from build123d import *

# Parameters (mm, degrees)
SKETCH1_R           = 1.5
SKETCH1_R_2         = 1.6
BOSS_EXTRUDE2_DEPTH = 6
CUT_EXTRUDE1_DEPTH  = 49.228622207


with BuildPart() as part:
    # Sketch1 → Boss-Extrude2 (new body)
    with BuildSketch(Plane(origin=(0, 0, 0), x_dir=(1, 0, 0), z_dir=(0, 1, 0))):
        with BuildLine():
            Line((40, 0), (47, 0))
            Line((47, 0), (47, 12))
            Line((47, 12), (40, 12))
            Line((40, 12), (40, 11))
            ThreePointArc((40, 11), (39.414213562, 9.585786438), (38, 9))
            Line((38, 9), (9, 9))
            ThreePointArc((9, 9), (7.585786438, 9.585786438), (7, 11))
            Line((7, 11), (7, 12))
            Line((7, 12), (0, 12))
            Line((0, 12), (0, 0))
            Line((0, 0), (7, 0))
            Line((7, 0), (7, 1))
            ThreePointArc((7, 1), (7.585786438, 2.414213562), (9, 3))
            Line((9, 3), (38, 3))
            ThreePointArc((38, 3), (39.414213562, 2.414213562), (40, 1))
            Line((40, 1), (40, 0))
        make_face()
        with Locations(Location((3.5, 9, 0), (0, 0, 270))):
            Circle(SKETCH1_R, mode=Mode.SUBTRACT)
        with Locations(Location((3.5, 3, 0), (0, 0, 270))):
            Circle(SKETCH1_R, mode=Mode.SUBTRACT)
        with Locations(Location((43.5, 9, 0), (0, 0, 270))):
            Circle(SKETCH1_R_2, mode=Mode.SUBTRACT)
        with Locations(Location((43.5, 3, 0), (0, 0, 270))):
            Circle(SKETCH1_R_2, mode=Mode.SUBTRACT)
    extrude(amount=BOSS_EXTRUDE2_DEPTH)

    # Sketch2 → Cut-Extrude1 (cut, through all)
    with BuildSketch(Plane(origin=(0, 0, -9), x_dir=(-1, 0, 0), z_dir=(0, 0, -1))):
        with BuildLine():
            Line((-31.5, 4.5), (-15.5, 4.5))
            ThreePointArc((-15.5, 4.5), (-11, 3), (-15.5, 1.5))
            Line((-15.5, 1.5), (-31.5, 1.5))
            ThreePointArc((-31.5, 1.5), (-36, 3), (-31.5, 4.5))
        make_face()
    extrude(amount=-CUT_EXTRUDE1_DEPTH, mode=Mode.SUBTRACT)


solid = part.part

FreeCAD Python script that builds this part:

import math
import FreeCAD as App
import Part
import Sketcher

V = App.Vector
Q = App.Units.Quantity

doc = App.newDocument("Part")
body = doc.addObject("PartDesign::Body", "Body")

sketch1 = body.newObject("Sketcher::SketchObject", "Sketch")
sketch1.AttachmentSupport = (doc.getObject("XZ_Plane"), [""])
sketch1.MapMode = "FlatFace"
sketch1.addGeometry([
    Part.LineSegment(V(40, 0, 0), V(47, 0, 0)),
    Part.LineSegment(V(47, 0, 0), V(47, -12, 0)),
    Part.LineSegment(V(47, -12, 0), V(40, -12, 0)),
    Part.LineSegment(V(40, -12, 0), V(40, -11, 0)),
    Part.ArcOfCircle(Part.Circle(V(38, -11, 0), V(0, 0, 1), 2), math.radians(0), math.radians(90)),
    Part.LineSegment(V(38, -9, 0), V(9, -9, 0)),
    Part.ArcOfCircle(Part.Circle(V(9, -11, 0), V(0, 0, 1), 2), math.radians(90), math.radians(180)),
    Part.LineSegment(V(7, -11, 0), V(7, -12, 0)),
    Part.LineSegment(V(7, -12, 0), V(0, -12, 0)),
    Part.LineSegment(V(0, -12, 0), V(0, 0, 0)),
    Part.LineSegment(V(0, 0, 0), V(7, 0, 0)),
    Part.LineSegment(V(7, 0, 0), V(7, -1, 0)),
    Part.ArcOfCircle(Part.Circle(V(9, -1, 0), V(0, 0, 1), 2), math.radians(-180), math.radians(-90)),
    Part.LineSegment(V(9, -3, 0), V(38, -3, 0)),
    Part.ArcOfCircle(Part.Circle(V(38, -1, 0), V(0, 0, 1), 2), math.radians(-90), math.radians(0)),
    Part.LineSegment(V(40, -1, 0), V(40, 0, 0)),
    Part.Circle(V(3.5, -3, 0), V(0, 0, 1), 1.5),
    Part.Circle(V(43.5, -3, 0), V(0, 0, 1), 1.6),
    Part.Circle(V(3.5, -9, 0), V(0, 0, 1), 1.5),
    Part.Circle(V(43.5, -9, 0), V(0, 0, 1), 1.6),
], False)
sketch1.addConstraint([
    Sketcher.Constraint("Coincident", 0, 2, 1, 1),
    Sketcher.Constraint("Coincident", 1, 2, 2, 1),
    Sketcher.Constraint("Coincident", 2, 2, 3, 1),
    Sketcher.Constraint("Tangent", 3, 2, 4, 1),
    Sketcher.Constraint("Tangent", 4, 2, 5, 1),
    Sketcher.Constraint("Tangent", 5, 2, 6, 1),
    Sketcher.Constraint("Tangent", 6, 2, 7, 1),
    Sketcher.Constraint("Coincident", 7, 2, 8, 1),
    Sketcher.Constraint("Coincident", 8, 2, 9, 1),
    Sketcher.Constraint("Coincident", 9, 2, 10, 1),
    Sketcher.Constraint("Coincident", 10, 2, 11, 1),
    Sketcher.Constraint("Tangent", 11, 2, 12, 1),
    Sketcher.Constraint("Tangent", 12, 2, 13, 1),
    Sketcher.Constraint("Tangent", 13, 2, 14, 1),
    Sketcher.Constraint("Tangent", 14, 2, 15, 1),
    Sketcher.Constraint("Coincident", 15, 2, 0, 1),
    Sketcher.Constraint("Horizontal", 0),
    Sketcher.Constraint("Vertical", 1),
    Sketcher.Constraint("Horizontal", 2),
    Sketcher.Constraint("Vertical", 3),
    Sketcher.Constraint("Horizontal", 5),
    Sketcher.Constraint("Vertical", 7),
    Sketcher.Constraint("Horizontal", 8),
    Sketcher.Constraint("Vertical", 9),
    Sketcher.Constraint("Horizontal", 10),
    Sketcher.Constraint("Vertical", 11),
    Sketcher.Constraint("Horizontal", 13),
    Sketcher.Constraint("Vertical", 15),
    Sketcher.Constraint("Coincident", 9, 2, -1, 1),
    Sketcher.Constraint("Equal", 4, 6),
    Sketcher.Constraint("Equal", 6, 12),
    Sketcher.Constraint("Equal", 12, 14),
    Sketcher.Constraint("Equal", 16, 18),
    Sketcher.Constraint("Equal", 17, 19),
    Sketcher.Constraint("PointOnObject", 0, 2, -1),
    Sketcher.Constraint("Horizontal", 16, 3, 17, 3),
    Sketcher.Constraint("Horizontal", 18, 3, 19, 3),
    Sketcher.Constraint("Horizontal", 19, 3, 4, 2),
    Sketcher.Constraint("Horizontal", 2, 2, 7, 2),
    Sketcher.Constraint("Horizontal", 17, 3, 12, 2),
    Sketcher.Constraint("Vertical", 6, 3, 12, 3),
    Sketcher.Constraint("Vertical", 4, 3, 14, 3),
    Sketcher.Constraint("Vertical", 16, 3, 18, 3),
    Sketcher.Constraint("Vertical", 17, 3, 19, 3),
    Sketcher.Constraint("Equal", 2, 8),
    Sketcher.Constraint("Equal", 7, 11),
    Sketcher.Constraint("Diameter", 16, Q("3 mm")),
    Sketcher.Constraint("Radius", 4, Q("2 mm")),
    Sketcher.Constraint("Diameter", 17, Q("3.2 mm")),
    Sketcher.Constraint("DistanceX", 0, 1, 0, 2, Q("7 mm")),
    Sketcher.Constraint("DistanceX", 5, 2, 5, 1, Q("29 mm")),
    Sketcher.Constraint("DistanceY", 1, 2, 1, 1, Q("12 mm")),
    Sketcher.Constraint("DistanceY", 3, 1, 3, 2, Q("1 mm")),
    Sketcher.Constraint("DistanceX", 16, 3, 17, 3, Q("40 mm")),
    Sketcher.Constraint("DistanceX", -1, 1, 16, 3, Q("3.5 mm")),
])
pad1 = body.newObject("PartDesign::Pad", "Pad")
pad1.Profile = sketch1
pad1.Length = 6
pad1.Reversed = True

sketch2 = body.newObject("Sketcher::SketchObject", "Sketch001")
sketch2.AttachmentSupport = (doc.getObject("XY_Plane"), [""])
sketch2.MapMode = "FlatFace"
sketch2.AttachmentOffset = App.Placement(V(0, 0, -9), App.Rotation())
sketch2.addGeometry([
    Part.LineSegment(V(15.5, 4.5, 0), V(31.5, 4.5, 0)),
    Part.ArcOfCircle(Part.Circle(V(33.5, 3, 0), V(0, 0, 1), 2.5), math.radians(-143.130102), math.radians(143.130102)),
    Part.LineSegment(V(31.5, 1.5, 0), V(15.5, 1.5, 0)),
    Part.ArcOfCircle(Part.Circle(V(13.5, 3, 0), V(0, 0, 1), 2.5), math.radians(36.869898), math.radians(323.130102)),
], False)
sketch2.addConstraint([
    Sketcher.Constraint("Coincident", 0, 2, 1, 2),
    Sketcher.Constraint("Coincident", 1, 1, 2, 1),
    Sketcher.Constraint("Coincident", 2, 2, 3, 2),
    Sketcher.Constraint("Coincident", 3, 1, 0, 1),
    Sketcher.Constraint("Horizontal", 0),
    Sketcher.Constraint("Horizontal", 2),
    Sketcher.Constraint("Equal", 1, 3),
    Sketcher.Constraint("Horizontal", 1, 3, 3, 3),
    Sketcher.Constraint("Vertical", 0, 2, 1, 1),
    Sketcher.Constraint("Radius", 1, Q("2.5 mm")),
    Sketcher.Constraint("DistanceX", 0, 1, 0, 2, Q("16 mm")),
    Sketcher.Constraint("DistanceY", -1, 1, 1, 3, Q("3 mm")),
    Sketcher.Constraint("DistanceX", 3, 3, 1, 3, Q("20 mm")),
    Sketcher.Constraint("DistanceX", -1, 1, 1, 3, Q("33.5 mm")),
])
pocket1 = body.newObject("PartDesign::Pocket", "Pocket")
pocket1.Profile = sketch2
pocket1.Type = "ThroughAll"
pocket1.Reversed = True

doc.recompute()
